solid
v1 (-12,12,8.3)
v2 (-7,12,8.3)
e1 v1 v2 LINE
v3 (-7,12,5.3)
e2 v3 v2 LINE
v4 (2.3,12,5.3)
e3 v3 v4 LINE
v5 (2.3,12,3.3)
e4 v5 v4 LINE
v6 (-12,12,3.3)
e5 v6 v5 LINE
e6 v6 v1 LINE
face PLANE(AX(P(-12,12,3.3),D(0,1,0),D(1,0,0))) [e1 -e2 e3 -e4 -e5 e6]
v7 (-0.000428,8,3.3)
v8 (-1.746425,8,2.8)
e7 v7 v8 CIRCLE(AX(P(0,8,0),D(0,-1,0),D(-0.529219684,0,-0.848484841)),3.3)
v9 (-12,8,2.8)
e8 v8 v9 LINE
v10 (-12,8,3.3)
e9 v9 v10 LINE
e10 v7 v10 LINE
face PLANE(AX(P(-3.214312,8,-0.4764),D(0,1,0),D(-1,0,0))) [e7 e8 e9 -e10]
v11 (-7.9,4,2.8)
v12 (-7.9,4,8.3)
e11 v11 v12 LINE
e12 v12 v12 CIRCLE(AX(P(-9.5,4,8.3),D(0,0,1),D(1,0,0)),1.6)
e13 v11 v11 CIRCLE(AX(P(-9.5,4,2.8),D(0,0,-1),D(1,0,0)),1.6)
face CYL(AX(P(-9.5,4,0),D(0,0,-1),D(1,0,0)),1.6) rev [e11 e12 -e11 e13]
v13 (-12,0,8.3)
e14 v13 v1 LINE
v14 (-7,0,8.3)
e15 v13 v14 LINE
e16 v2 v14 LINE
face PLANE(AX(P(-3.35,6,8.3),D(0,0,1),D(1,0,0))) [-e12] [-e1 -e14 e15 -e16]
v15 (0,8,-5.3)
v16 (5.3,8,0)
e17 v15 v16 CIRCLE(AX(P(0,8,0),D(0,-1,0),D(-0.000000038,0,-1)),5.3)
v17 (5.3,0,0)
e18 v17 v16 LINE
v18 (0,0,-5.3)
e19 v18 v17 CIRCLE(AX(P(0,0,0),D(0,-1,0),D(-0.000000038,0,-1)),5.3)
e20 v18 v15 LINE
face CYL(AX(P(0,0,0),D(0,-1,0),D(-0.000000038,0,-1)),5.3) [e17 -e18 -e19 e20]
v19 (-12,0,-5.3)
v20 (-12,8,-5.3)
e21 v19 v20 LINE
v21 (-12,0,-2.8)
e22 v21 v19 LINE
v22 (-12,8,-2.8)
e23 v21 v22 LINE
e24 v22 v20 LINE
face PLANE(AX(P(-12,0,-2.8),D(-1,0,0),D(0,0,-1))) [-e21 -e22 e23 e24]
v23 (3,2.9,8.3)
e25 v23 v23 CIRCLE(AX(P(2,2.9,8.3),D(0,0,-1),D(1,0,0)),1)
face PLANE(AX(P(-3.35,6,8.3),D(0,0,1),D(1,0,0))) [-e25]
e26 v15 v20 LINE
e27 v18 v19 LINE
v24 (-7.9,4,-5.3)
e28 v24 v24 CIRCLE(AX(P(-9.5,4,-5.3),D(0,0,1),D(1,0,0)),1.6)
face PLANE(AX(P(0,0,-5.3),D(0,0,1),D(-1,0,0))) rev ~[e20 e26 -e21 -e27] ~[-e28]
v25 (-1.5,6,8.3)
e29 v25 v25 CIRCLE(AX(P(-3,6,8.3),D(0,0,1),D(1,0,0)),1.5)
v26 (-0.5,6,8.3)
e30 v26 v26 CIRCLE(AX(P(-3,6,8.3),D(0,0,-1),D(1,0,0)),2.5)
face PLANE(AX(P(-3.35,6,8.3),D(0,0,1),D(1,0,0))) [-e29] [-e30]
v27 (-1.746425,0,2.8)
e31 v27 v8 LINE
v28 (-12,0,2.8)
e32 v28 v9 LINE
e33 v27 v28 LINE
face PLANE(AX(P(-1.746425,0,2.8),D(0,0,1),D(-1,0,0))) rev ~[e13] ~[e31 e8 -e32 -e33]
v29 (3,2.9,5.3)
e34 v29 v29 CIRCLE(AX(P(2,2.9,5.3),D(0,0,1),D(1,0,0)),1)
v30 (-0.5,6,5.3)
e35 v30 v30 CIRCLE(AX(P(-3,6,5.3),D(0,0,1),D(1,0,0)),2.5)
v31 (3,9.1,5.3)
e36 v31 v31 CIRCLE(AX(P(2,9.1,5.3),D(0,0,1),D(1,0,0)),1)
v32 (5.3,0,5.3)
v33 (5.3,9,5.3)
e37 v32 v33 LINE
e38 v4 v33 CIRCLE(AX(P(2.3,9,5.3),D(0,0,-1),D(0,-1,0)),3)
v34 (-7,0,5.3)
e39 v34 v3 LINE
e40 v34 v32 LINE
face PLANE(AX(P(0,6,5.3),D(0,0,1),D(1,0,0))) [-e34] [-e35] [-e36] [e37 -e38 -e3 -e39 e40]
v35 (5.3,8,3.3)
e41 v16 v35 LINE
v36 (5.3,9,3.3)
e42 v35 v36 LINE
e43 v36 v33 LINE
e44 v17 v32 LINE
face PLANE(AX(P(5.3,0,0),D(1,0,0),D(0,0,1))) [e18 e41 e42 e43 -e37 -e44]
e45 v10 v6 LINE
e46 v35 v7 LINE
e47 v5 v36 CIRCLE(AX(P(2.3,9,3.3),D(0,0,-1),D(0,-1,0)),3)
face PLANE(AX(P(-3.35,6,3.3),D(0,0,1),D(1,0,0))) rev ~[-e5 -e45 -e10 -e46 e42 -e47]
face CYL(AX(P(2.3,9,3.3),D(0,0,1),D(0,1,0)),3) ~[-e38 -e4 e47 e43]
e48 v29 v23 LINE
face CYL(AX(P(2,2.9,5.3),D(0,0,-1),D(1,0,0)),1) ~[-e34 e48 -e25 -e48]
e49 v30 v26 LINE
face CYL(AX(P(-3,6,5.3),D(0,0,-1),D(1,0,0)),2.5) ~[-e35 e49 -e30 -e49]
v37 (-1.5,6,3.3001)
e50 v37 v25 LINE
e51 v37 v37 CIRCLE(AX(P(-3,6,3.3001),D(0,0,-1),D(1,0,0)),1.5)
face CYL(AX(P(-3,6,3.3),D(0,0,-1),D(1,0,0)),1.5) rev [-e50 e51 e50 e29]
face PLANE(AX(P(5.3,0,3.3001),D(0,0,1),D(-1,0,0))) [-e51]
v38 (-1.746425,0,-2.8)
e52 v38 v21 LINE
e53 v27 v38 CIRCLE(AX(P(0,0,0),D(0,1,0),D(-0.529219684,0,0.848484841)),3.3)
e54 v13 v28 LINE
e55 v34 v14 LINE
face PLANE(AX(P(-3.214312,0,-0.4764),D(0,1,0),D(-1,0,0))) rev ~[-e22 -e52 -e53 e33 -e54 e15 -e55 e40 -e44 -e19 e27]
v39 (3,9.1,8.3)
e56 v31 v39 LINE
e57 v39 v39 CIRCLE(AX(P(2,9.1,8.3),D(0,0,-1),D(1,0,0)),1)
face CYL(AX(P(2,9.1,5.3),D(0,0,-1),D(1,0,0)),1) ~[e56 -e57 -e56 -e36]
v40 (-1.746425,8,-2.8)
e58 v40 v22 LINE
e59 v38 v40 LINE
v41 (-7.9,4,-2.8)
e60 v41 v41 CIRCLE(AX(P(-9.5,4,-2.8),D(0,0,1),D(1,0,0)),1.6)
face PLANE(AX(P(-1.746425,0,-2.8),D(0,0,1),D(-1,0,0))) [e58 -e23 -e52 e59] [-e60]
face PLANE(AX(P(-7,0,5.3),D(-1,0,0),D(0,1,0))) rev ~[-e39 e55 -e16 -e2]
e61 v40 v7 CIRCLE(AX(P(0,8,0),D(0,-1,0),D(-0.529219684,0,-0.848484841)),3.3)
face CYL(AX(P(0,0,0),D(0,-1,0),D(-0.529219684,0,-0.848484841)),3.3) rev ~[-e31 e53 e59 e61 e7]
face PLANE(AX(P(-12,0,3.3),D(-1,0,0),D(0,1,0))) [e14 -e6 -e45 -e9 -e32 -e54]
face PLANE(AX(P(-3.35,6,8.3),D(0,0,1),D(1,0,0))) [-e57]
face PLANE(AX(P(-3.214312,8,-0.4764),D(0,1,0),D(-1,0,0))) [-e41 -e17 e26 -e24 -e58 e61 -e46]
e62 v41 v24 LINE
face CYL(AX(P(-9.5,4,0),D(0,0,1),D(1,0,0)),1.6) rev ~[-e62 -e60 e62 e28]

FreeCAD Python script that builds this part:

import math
import FreeCAD as App
import Part
import Sketcher
from FreeCAD import Vector
Q = App.Units.Quantity


def edges_at(feature, points):
    """Names of the edges that pass closest to the given points."""
    edges = feature.Shape.Edges
    near = lambda p: min(range(len(edges)), key=lambda i: edges[i].distToShape(Part.Vertex(*p))[0])
    return sorted({f"Edge{near(p) + 1}" for p in points})

doc = App.newDocument("Part")
body = doc.addObject("PartDesign::Body", "Body")

# Sketch on XZ plane
sketch1 = doc.addObject("Sketcher::SketchObject", "Sketch")
body.addObject(sketch1)
sketch1.AttachmentSupport = (doc.XZ_Plane, [""])
sketch1.MapMode = "FlatFace"
sketch1.addGeometry([
    Part.LineSegment(Vector(-12, -5.3, 0), Vector(0, -5.3, 0)),  # 0
    Part.ArcOfCircle(Part.Circle(Vector(0, 0, 0), Vector(0, 0, 1), 5.3), math.radians(-90.000002), math.radians(0.000002)),  # 1
    Part.LineSegment(Vector(5.3, 0, 0), Vector(5.3, 3.3001, 0)),  # 2
    Part.LineSegment(Vector(5.3, 3.3001, 0), Vector(-12, 3.3001, 0)),  # 3
    Part.LineSegment(Vector(-12, 3.3001, 0), Vector(-12, 2.8, 0)),  # 4
    Part.LineSegment(Vector(-12, 2.8, 0), Vector(-1.746425, 2.8, 0)),  # 5
    Part.ArcOfCircle(Part.Circle(Vector(0, 0, 0), Vector(0, 0, 1), 3.3), math.radians(-121.952747), math.radians(121.952747)),  # 6
    Part.LineSegment(Vector(-1.746425, -2.8, 0), Vector(-12, -2.8, 0)),  # 7
    Part.LineSegment(Vector(-12, -2.8, 0), Vector(-12, -5.3, 0)),  # 8
], False)
sketch1.addConstraint([
    Sketcher.Constraint("Tangent", 0, 2, 1, 1),
    Sketcher.Constraint("Tangent", 1, 2, 2, 1),
    Sketcher.Constraint("Coincident", 2, 2, 3, 1),
    Sketcher.Constraint("Coincident", 3, 2, 4, 1),
    Sketcher.Constraint("Coincident", 4, 2, 5, 1),
    Sketcher.Constraint("Coincident", 5, 2, 6, 2),
    Sketcher.Constraint("Coincident", 6, 1, 7, 1),
    Sketcher.Constraint("Coincident", 7, 2, 8, 1),
    Sketcher.Constraint("Coincident", 8, 2, 0, 1),
    Sketcher.Constraint("Horizontal", 0),
    Sketcher.Constraint("Vertical", 2),
    Sketcher.Constraint("Horizontal", 3),
    Sketcher.Constraint("Vertical", 4),
    Sketcher.Constraint("Horizontal", 5),
    Sketcher.Constraint("Horizontal", 7),
    Sketcher.Constraint("Vertical", 8),
    Sketcher.Constraint("Coincident", 1, 3, -1, 1),
    Sketcher.Constraint("Coincident", 6, 3, -1, 1),
    Sketcher.Constraint("Symmetric", 4, 2, 7, 2, -1),
    Sketcher.Constraint("Radius", 1, Q("5.3 mm")),
    Sketcher.Constraint("Radius", 6, Q("3.3 mm")),
    Sketcher.Constraint("DistanceX", 0, 1, 0, 2, Q("12 mm")),
    Sketcher.Constraint("DistanceY", 8, 2, 8, 1, Q("2.5 mm")),
    Sketcher.Constraint("DistanceY", 2, 1, 2, 2, Q("3.3001 mm")),
])
pad1 = doc.addObject("PartDesign::Pad", "Pad")
body.addObject(pad1)
pad1.Profile = sketch1
pad1.Length = 8
pad1.Reversed = True

# Sketch on XY plane
sketch2 = doc.addObject("Sketcher::SketchObject", "Sketch001")
body.addObject(sketch2)
sketch2.AttachmentSupport = (doc.XY_Plane, [""])
sketch2.MapMode = "FlatFace"
sketch2.addGeometry(Part.Circle(Vector(-9.5, 4, 0), Vector(0, 0, 1), 1.6), False)
sketch2.addConstraint([
    Sketcher.Constraint("Diameter", 0, Q("3.2 mm")),
    Sketcher.Constraint("DistanceY", -1, 1, 0, 3, Q("4 mm")),
    Sketcher.Constraint("DistanceX", 0, 3, -1, 1, Q("9.5 mm")),
])
pocket1 = doc.addObject("PartDesign::Pocket", "Pocket")
body.addObject(pocket1)
pocket1.Profile = sketch2
pocket1.Type = "ThroughAll"
pocket1.Midplane = True
body2 = doc.addObject("PartDesign::Body", "Body001")

# Sketch on XY plane
sketch3 = doc.addObject("Sketcher::SketchObject", "Sketch002")
body2.addObject(sketch3)
sketch3.AttachmentSupport = (doc.getObject("XY_Plane001"), [""])
sketch3.MapMode = "FlatFace"
sketch3.addGeometry([
    Part.LineSegment(Vector(0, 12, 0), Vector(0, 0, 0)),  # 0
    Part.LineSegment(Vector(0, 0, 0), Vector(17.3, 0, 0)),  # 1
    Part.LineSegment(Vector(17.3, 0, 0), Vector(17.3, 12, 0)),  # 2
    Part.LineSegment(Vector(17.3, 12, 0), Vector(0, 12, 0)),  # 3
    Part.Circle(Vector(2.5, 4, 0), Vector(0, 0, 1), 1.6),  # 4
    Part.Circle(Vector(9, 6, 0), Vector(0, 0, 1), 1.5),  # 5
], False)
sketch3.addConstraint([
    Sketcher.Constraint("Coincident", 0, 2, 1, 1),
    Sketcher.Constraint("Coincident", 1, 2, 2, 1),
    Sketcher.Constraint("Coincident", 2, 2, 3, 1),
    Sketcher.Constraint("Coincident", 3, 2, 0, 1),
    Sketcher.Constraint("Vertical", 0),
    Sketcher.Constraint("Horizontal", 1),
    Sketcher.Constraint("Vertical", 2),
    Sketcher.Constraint("Horizontal", 3),
    Sketcher.Constraint("Coincident", 0, 2, -1, 1),
    Sketcher.Constraint("Diameter", 5, Q("3 mm")),
    Sketcher.Constraint("Diameter", 4, Q("3.2 mm")),
    Sketcher.Constraint("DistanceY", 0, 2, 0, 1, Q("12 mm")),
    Sketcher.Constraint("DistanceX", 1, 1, 1, 2, Q("17.3 mm")),
    Sketcher.Constraint("DistanceY", -1, 1, 4, 3, Q("4 mm")),
    Sketcher.Constraint("DistanceX", -1, 1, 5, 3, Q("9 mm")),
    Sketcher.Constraint("DistanceY", -1, 1, 5, 3, Q("6 mm")),
    Sketcher.Constraint("DistanceX", -1, 1, 4, 3, Q("2.5 mm")),
])
pad2 = doc.addObject("PartDesign::Pad", "Pad001")
body2.addObject(pad2)
pad2.Profile = sketch3
pad2.Length = 5

# Sketch on XY plane
sketch4 = doc.addObject("Sketcher::SketchObject", "Sketch003")
body2.addObject(sketch4)
sketch4.AttachmentSupport = (doc.getObject("XY_Plane001"), [""])
sketch4.MapMode = "FlatFace"
sketch4.AttachmentOffset = App.Placement(Vector(0, 0, 2), App.Rotation())
sketch4.addGeometry([
    Part.LineSegment(Vector(5, 12, 0), Vector(5, 0, 0)),  # 0
    Part.LineSegment(Vector(5, 0, 0), Vector(19, 0, 0)),  # 1
    Part.LineSegment(Vector(19, 0, 0), Vector(19, 12, 0)),  # 2
    Part.LineSegment(Vector(19, 12, 0), Vector(5, 12, 0)),  # 3
    Part.Circle(Vector(14, 2.9, 0), Vector(0, 0, 1), 1),  # 4
    Part.Circle(Vector(9, 6, 0), Vector(0, 0, 1), 2.5),  # 5
    Part.Circle(Vector(14, 9.1, 0), Vector(0, 0, 1), 1),  # 6
], False)
sketch4.addConstraint([
    Sketcher.Constraint("Coincident", 0, 2, 1, 1),
    Sketcher.Constraint("Coincident", 1, 2, 2, 1),
    Sketcher.Constraint("Coincident", 2, 2, 3, 1),
    Sketcher.Constraint("Coincident", 3, 2, 0, 1),
    Sketcher.Constraint("Vertical", 0),
    Sketcher.Constraint("Horizontal", 1),
    Sketcher.Constraint("Vertical", 2),
    Sketcher.Constraint("Horizontal", 3),
    Sketcher.Constraint("Equal", 4, 6),
    Sketcher.Constraint("PointOnObject", 0, 2, -1),
    Sketcher.Constraint("Vertical", 4, 3, 6, 3),
    Sketcher.Constraint("Diameter", 4, Q("2 mm")),
    Sketcher.Constraint("Diameter", 5, Q("5 mm")),
    Sketcher.Constraint("DistanceX", 1, 1, 1, 2, Q("14 mm")),
    Sketcher.Constraint("DistanceY", 0, 2, 0, 1, Q("12 mm")),
    Sketcher.Constraint("DistanceX", -1, 1, 4, 3, Q("14 mm")),
    Sketcher.Constraint("DistanceX", -1, 1, 5, 3, Q("9 mm")),
    Sketcher.Constraint("DistanceY", -1, 1, 5, 3, Q("6 mm")),
    Sketcher.Constraint("DistanceX", -1, 1, 0, 2, Q("5 mm")),
    Sketcher.Constraint("DistanceY", -1, 1, 4, 3, Q("2.9 mm")),
    Sketcher.Constraint("DistanceY", -1, 1, 6, 3, Q("9.1 mm")),
])
pocket2 = doc.addObject("PartDesign::Pocket", "Pocket001")
body2.addObject(pocket2)
pocket2.Profile = sketch4
pocket2.Type = "ThroughAll"
pocket2.Reversed = True
doc.recompute()

fillet = doc.addObject("PartDesign::Fillet", "Fillet")
body2.addObject(fillet)
fillet.Base = (pocket2, edges_at(pocket2, [(17.3, 12, 1)]))
fillet.Radius = 3
body3 = doc.addObject("PartDesign::Body", "Body002")
doc.recompute()

body2.Placement = App.Placement(Vector(-12, 0, 3.3), App.Rotation(Vector(0, 0, 1), 0))
boolean = doc.addObject("PartDesign::Boolean", "Boolean")
body3.addObject(boolean)
boolean.Type = "Fuse"
boolean.addObjects([body2])
doc.recompute()

boolean2 = doc.addObject("PartDesign::Boolean", "Boolean001")
body3.addObject(boolean2)
boolean2.Type = "Fuse"
boolean2.addObjects([body])

doc.recompute()
